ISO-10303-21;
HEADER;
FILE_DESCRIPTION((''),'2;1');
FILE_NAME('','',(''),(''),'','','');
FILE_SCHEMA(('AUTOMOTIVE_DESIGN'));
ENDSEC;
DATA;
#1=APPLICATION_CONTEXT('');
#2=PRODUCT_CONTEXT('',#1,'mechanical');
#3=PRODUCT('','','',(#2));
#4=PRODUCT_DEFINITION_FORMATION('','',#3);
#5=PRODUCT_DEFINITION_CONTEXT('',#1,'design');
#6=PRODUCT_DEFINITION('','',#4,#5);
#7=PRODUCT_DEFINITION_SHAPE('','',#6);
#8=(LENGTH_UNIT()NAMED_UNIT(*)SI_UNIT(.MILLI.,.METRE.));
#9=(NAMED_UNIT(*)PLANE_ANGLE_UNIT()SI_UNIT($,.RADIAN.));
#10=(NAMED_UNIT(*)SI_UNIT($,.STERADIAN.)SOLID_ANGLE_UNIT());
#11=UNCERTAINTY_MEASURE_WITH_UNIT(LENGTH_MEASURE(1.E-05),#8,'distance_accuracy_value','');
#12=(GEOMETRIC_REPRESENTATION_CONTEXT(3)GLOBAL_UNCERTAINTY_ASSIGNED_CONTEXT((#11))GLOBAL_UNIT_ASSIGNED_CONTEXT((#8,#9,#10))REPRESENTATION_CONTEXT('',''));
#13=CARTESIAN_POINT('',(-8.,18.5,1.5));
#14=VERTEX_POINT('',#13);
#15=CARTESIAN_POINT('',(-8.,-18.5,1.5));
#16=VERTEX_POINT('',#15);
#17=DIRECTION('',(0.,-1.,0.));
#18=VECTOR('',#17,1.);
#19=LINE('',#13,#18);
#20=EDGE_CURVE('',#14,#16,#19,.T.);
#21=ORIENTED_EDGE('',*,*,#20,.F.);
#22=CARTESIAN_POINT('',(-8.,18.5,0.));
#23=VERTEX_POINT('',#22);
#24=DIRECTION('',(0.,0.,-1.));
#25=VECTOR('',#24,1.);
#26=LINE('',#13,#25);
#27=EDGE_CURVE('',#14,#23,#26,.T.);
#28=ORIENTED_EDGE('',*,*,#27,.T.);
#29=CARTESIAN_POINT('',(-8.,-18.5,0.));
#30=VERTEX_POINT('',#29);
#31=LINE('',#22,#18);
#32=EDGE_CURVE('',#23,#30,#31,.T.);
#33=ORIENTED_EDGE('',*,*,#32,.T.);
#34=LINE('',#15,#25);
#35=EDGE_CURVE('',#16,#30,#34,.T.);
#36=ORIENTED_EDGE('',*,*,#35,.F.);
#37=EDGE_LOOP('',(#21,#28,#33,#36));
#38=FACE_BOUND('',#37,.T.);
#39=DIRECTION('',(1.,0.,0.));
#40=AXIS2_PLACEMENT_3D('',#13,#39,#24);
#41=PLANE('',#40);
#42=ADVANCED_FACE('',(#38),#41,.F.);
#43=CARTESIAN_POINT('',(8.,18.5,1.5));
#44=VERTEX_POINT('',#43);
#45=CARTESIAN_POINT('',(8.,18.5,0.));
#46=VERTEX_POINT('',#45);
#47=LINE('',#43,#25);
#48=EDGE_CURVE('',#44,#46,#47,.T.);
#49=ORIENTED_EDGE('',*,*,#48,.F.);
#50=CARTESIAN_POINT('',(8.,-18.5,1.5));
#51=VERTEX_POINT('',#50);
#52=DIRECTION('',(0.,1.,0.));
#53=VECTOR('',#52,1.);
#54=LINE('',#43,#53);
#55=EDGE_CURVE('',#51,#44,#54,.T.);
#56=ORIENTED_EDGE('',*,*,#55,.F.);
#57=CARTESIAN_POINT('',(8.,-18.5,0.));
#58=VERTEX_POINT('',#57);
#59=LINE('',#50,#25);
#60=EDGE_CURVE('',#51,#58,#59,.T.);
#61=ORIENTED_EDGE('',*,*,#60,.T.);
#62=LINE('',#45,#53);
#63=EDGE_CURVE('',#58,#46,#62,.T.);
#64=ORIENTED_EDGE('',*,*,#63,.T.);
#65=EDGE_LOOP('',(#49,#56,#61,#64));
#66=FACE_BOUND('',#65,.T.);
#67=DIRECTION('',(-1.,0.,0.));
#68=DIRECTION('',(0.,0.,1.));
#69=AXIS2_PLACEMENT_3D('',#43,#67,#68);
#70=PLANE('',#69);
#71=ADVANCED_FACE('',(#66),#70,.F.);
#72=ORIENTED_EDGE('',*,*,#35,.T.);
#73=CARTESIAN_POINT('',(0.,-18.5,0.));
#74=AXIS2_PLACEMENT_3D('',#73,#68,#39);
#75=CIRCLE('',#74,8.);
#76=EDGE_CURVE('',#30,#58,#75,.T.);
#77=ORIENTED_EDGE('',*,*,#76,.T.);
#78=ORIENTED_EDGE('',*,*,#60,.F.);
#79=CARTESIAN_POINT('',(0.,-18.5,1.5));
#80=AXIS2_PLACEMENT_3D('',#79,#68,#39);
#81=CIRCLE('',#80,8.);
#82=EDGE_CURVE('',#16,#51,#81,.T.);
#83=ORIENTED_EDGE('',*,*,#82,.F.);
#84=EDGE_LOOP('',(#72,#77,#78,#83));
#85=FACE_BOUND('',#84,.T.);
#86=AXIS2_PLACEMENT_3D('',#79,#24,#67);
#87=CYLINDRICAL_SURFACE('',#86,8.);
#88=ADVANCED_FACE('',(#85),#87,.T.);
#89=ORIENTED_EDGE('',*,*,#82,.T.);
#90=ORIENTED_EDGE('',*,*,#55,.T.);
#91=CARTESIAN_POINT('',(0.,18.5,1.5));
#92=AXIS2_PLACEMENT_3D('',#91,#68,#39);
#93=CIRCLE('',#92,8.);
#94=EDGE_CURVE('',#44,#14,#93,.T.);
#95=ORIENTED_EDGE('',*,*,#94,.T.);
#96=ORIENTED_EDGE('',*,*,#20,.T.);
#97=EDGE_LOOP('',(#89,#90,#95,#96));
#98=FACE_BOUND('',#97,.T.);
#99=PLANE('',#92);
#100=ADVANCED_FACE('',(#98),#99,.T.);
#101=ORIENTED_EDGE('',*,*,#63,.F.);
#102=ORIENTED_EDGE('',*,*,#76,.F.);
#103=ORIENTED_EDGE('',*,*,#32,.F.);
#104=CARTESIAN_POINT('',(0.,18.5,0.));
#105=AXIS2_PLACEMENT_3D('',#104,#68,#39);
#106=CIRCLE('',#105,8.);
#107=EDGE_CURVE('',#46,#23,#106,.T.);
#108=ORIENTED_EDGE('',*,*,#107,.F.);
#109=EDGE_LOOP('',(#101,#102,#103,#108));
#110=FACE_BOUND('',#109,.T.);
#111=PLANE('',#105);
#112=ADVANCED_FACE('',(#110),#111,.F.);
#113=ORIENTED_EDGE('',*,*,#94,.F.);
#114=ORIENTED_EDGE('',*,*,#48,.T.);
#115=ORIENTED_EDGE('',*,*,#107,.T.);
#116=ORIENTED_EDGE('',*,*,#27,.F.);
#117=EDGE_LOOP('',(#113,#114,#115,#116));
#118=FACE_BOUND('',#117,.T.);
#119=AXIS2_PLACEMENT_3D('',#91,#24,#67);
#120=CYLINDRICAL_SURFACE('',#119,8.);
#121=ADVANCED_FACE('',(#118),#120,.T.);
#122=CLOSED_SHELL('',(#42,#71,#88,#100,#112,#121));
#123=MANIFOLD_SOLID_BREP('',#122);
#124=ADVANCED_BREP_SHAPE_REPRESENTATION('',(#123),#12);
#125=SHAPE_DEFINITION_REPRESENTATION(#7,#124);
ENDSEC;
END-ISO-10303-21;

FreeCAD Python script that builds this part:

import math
import FreeCAD as App
import Part
import Sketcher

doc = App.newDocument("Part")
body = doc.addObject("PartDesign::Body", "Body")

sketch1 = doc.addObject("Sketcher::SketchObject", "Sketch")
body.addObject(sketch1)
sketch1.AttachmentSupport = (doc.XY_Plane, [""])
sketch1.MapMode = "FlatFace"
sketch1.addGeometry([
    Part.LineSegment(App.Vector(-8, 18, 0), App.Vector(-8, -18, 0)),
    Part.ArcOfCircle(Part.Circle(App.Vector(0, -18, 0), App.Vector(0, 0, 1), 8), math.radians(180), math.radians(360)),
    Part.LineSegment(App.Vector(8, -18, 0), App.Vector(8, 18, 0)),
    Part.ArcOfCircle(Part.Circle(App.Vector(0, 18, 0), App.Vector(0, 0, 1), 8), math.radians(0), math.radians(180)),
], False)
sketch1.addConstraint([
    Sketcher.Constraint("Tangent", 0, 2, 1, 1),
    Sketcher.Constraint("Tangent", 1, 2, 2, 1),
    Sketcher.Constraint("Tangent", 2, 2, 3, 1),
    Sketcher.Constraint("Tangent", 3, 2, 0, 1),
    Sketcher.Constraint("Vertical", 0),
    Sketcher.Constraint("Vertical", 2),
    Sketcher.Constraint("Symmetric", 1, 3, 3, 3, -1, 1),
    Sketcher.Constraint("Radius", 1, 8.0),
    Sketcher.Constraint("DistanceY", 0, 2, 0, 1, 37.0),
])
pad1 = doc.addObject("PartDesign::Pad", "Pad")
body.addObject(pad1)
pad1.Profile = sketch1
pad1.Length = 1.5

doc.recompute()
